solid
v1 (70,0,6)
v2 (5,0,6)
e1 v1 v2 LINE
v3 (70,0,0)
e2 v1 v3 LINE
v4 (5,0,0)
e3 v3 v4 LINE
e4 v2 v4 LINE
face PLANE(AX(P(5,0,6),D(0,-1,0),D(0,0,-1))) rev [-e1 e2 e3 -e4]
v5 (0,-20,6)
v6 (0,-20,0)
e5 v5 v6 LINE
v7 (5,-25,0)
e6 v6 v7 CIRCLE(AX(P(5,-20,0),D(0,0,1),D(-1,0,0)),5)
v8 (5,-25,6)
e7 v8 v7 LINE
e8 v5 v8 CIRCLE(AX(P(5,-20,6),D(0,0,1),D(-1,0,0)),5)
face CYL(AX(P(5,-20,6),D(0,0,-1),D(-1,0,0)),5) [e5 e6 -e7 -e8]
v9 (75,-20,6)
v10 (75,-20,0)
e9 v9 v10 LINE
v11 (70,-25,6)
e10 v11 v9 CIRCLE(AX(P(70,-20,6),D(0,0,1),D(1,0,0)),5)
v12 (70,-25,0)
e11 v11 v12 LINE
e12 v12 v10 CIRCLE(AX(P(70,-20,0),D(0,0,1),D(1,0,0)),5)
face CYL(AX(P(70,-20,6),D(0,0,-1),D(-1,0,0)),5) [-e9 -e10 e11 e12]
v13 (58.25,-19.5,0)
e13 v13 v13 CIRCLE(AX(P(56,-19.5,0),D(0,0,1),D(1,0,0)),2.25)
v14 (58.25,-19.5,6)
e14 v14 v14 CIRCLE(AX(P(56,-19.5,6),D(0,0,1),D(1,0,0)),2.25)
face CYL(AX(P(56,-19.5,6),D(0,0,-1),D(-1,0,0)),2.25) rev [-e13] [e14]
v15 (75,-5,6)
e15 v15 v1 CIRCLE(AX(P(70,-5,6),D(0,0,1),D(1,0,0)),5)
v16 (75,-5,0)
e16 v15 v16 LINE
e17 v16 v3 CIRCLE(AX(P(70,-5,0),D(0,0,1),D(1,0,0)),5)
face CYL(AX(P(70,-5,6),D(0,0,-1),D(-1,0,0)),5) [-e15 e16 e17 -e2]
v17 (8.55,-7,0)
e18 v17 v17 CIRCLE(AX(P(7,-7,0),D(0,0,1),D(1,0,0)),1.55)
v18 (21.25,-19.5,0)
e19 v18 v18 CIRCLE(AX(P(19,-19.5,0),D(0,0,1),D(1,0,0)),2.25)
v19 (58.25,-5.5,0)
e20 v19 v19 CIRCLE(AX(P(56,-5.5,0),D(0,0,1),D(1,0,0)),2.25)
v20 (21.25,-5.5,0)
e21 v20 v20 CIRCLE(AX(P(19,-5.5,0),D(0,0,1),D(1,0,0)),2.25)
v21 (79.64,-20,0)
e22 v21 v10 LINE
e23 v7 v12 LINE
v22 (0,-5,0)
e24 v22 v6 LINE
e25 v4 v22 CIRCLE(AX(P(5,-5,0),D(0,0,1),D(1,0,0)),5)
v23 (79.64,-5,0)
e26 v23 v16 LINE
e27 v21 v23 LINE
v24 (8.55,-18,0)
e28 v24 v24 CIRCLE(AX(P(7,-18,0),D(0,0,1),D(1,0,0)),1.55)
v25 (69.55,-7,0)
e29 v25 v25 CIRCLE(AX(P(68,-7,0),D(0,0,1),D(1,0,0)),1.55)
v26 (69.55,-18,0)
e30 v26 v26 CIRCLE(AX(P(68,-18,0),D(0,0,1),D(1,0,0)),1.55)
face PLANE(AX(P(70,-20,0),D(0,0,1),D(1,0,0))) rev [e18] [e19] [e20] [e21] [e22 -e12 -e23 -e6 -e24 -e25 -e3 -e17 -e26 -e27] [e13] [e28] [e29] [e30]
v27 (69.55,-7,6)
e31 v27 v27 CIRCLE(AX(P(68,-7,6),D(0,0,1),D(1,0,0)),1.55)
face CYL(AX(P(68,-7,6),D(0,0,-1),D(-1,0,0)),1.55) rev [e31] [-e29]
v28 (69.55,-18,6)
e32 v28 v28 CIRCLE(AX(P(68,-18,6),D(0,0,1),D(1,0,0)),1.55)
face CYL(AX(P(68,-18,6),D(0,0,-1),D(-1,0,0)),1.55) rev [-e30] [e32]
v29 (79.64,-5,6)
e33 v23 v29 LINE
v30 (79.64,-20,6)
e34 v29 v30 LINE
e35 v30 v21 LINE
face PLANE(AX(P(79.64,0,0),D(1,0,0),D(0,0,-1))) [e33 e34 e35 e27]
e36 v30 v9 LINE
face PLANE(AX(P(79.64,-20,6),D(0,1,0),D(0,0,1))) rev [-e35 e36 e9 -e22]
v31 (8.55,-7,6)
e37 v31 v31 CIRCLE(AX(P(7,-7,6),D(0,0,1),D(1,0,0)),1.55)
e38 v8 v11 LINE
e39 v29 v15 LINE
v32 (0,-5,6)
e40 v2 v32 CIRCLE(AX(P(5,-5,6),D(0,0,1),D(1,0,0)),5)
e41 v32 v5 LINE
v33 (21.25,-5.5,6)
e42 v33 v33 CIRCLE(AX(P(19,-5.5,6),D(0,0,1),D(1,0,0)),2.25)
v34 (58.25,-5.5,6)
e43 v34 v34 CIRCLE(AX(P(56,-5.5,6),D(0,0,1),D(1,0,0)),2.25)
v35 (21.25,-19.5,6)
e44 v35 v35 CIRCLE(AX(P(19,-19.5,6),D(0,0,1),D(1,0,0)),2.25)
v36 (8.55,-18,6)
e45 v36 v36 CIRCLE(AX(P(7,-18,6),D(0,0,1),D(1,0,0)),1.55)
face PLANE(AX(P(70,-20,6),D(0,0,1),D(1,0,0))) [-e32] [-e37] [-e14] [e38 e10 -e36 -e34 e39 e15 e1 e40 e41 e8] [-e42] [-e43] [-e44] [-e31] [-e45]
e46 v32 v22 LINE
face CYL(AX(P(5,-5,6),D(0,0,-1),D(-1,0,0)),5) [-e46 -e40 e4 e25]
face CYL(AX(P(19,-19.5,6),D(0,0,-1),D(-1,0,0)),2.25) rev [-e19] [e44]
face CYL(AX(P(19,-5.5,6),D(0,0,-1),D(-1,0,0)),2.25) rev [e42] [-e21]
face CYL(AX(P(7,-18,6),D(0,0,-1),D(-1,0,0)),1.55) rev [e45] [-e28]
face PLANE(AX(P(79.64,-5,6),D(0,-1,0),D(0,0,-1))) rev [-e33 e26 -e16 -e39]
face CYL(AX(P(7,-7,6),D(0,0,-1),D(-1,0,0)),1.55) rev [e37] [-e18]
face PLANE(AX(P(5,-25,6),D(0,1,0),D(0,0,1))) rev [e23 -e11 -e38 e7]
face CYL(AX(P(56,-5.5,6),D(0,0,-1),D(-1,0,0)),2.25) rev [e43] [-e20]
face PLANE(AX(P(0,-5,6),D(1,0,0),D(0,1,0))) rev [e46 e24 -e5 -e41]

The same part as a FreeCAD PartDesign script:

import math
import FreeCAD as App
import Part
import Sketcher
from FreeCAD import Vector
Q = App.Units.Quantity


def add_polygon(sketch, points):
    """Adds a closed chain of lines whose ends are joined by coincident constraints."""
    first, n = sketch.GeometryCount, len(points)
    for a, b in zip(points, points[1:] + points[:1]):
        sketch.addGeometry(Part.LineSegment(App.Vector(*a, 0), App.Vector(*b, 0)), False)
    for i in range(n):
        sketch.addConstraint(Sketcher.Constraint("Coincident", first + i, 2, first + (i + 1) % n, 1))

doc = App.newDocument("Part")
body = doc.addObject("PartDesign::Body", "Body")

# Sketch on XY plane
sketch1 = body.newObject("Sketcher::SketchObject", "Sketch")
sketch1.AttachmentSupport = (doc.getObject("XY_Plane"), [""])
sketch1.MapMode = "FlatFace"
sketch1.addGeometry([
    Part.LineSegment(Vector(70, 0, 0), Vector(5, 0, 0)),  # 0
    Part.ArcOfCircle(Part.Circle(Vector(5, -5, 0), Vector(0, 0, 1), 5), math.radians(90), math.radians(180)),  # 1
    Part.LineSegment(Vector(0, -5, 0), Vector(0, -20, 0)),  # 2
    Part.ArcOfCircle(Part.Circle(Vector(5, -20, 0), Vector(0, 0, 1), 5), math.radians(180), math.radians(270)),  # 3
    Part.LineSegment(Vector(5, -25, 0), Vector(70, -25, 0)),  # 4
    Part.ArcOfCircle(Part.Circle(Vector(70, -20, 0), Vector(0, 0, 1), 5), math.radians(-90), math.radians(0)),  # 5
    Part.LineSegment(Vector(75, -20, 0), Vector(75, -5, 0)),  # 6
    Part.ArcOfCircle(Part.Circle(Vector(70, -5, 0), Vector(0, 0, 1), 5), math.radians(0), math.radians(90)),  # 7
    Part.Circle(Vector(56, -19.5, 0), Vector(0, 0, 1), 2.2),  # 8
    Part.Circle(Vector(68, -18, 0), Vector(0, 0, 1), 1.6),  # 9
    Part.Circle(Vector(19, -19.5, 0), Vector(0, 0, 1), 2.2),  # 10
    Part.Circle(Vector(7, -18, 0), Vector(0, 0, 1), 1.6),  # 11
    Part.Circle(Vector(68, -7, 0), Vector(0, 0, 1), 1.6),  # 12
    Part.Circle(Vector(56, -5.5, 0), Vector(0, 0, 1), 2.2),  # 13
    Part.Circle(Vector(7, -7, 0), Vector(0, 0, 1), 1.6),  # 14
    Part.Circle(Vector(19, -5.5, 0), Vector(0, 0, 1), 2.2),  # 15
], False)
sketch1.addConstraint([
    Sketcher.Constraint("Tangent", 0, 2, 1, 1),
    Sketcher.Constraint("Tangent", 1, 2, 2, 1),
    Sketcher.Constraint("Tangent", 2, 2, 3, 1),
    Sketcher.Constraint("Tangent", 3, 2, 4, 1),
    Sketcher.Constraint("Tangent", 4, 2, 5, 1),
    Sketcher.Constraint("Tangent", 5, 2, 6, 1),
    Sketcher.Constraint("Tangent", 6, 2, 7, 1),
    Sketcher.Constraint("Tangent", 7, 2, 0, 1),
    Sketcher.Constraint("Horizontal", 0),
    Sketcher.Constraint("Vertical", 2),
    Sketcher.Constraint("Horizontal", 4),
    Sketcher.Constraint("Vertical", 6),
    Sketcher.Constraint("Equal", 1, 3),
    Sketcher.Constraint("Equal", 3, 5),
    Sketcher.Constraint("Equal", 5, 7),
    Sketcher.Constraint("Equal", 8, 10),
    Sketcher.Constraint("Equal", 9, 11),
    Sketcher.Constraint("Equal", 11, 12),
    Sketcher.Constraint("Equal", 10, 13),
    Sketcher.Constraint("Equal", 12, 14),
    Sketcher.Constraint("Equal", 13, 15),
    Sketcher.Constraint("PointOnObject", 0, 2, -1),
    Sketcher.Constraint("PointOnObject", 1, 2, -2),
    Sketcher.Constraint("Horizontal", 8, 3, 10, 3),
    Sketcher.Constraint("Horizontal", 9, 3, 11, 3),
    Sketcher.Constraint("Horizontal", 12, 3, 14, 3),
    Sketcher.Constraint("Horizontal", 13, 3, 15, 3),
    Sketcher.Constraint("Vertical", 9, 3, 12, 3),
    Sketcher.Constraint("Vertical", 8, 3, 13, 3),
    Sketcher.Constraint("Vertical", 11, 3, 14, 3),
    Sketcher.Constraint("Vertical", 10, 3, 15, 3),
    Sketcher.Constraint("Radius", 1, Q("5 mm")),
    Sketcher.Constraint("Diameter", 8, Q("4.5 mm")),
    Sketcher.Constraint("Diameter", 9, Q("3.1 mm")),
    Sketcher.Constraint("DistanceX", 0, 2, 0, 1, Q("65 mm")),
    Sketcher.Constraint("DistanceY", 2, 2, 2, 1, Q("15 mm")),
    Sketcher.Constraint("DistanceX", -1, 1, 8, 3, Q("56 mm")),
    Sketcher.Constraint("DistanceX", -1, 1, 9, 3, Q("68 mm")),
    Sketcher.Constraint("DistanceY", 9, 3, -1, 1, Q("18 mm")),
    Sketcher.Constraint("DistanceX", -1, 1, 10, 3, Q("19 mm")),
    Sketcher.Constraint("DistanceX", -1, 1, 11, 3, Q("7 mm")),
    Sketcher.Constraint("DistanceY", 12, 3, -1, 1, Q("7 mm")),
    Sketcher.Constraint("DistanceY", 8, 3, 13, 3, Q("14 mm")),
    Sketcher.Constraint("DistanceY", 8, 3, -1, 1, Q("19.5 mm")),
])
pad1 = body.newObject("PartDesign::Pad", "Pad")
pad1.Profile = sketch1
pad1.Length = 6

# Sketch on YZ plane
sketch2 = body.newObject("Sketcher::SketchObject", "Sketch001")
sketch2.AttachmentSupport = (doc.getObject("YZ_Plane"), [""])
sketch2.MapMode = "FlatFace"
sketch2.AttachmentOffset = App.Placement(Vector(0, 0, 75), App.Rotation())
add_polygon(sketch2, [(-5, 6), (-20, 6), (-20, 0), (-5, 0)])  # lines 0-3
sketch2.addConstraint([
    Sketcher.Constraint("Horizontal", 0),
    Sketcher.Constraint("Vertical", 1),
    Sketcher.Constraint("Horizontal", 2),
    Sketcher.Constraint("Vertical", 3),
    Sketcher.Constraint("PointOnObject", 1, 2, -1),
    Sketcher.Constraint("DistanceX", 0, 2, 0, 1, Q("15 mm")),
    Sketcher.Constraint("DistanceY", 1, 2, 1, 1, Q("6 mm")),
    Sketcher.Constraint("DistanceX", 0, 2, -1, 1, Q("20 mm")),
])
pad2 = body.newObject("PartDesign::Pad", "Pad001")
pad2.Profile = sketch2
pad2.Length = 4.64

doc.recompute()
